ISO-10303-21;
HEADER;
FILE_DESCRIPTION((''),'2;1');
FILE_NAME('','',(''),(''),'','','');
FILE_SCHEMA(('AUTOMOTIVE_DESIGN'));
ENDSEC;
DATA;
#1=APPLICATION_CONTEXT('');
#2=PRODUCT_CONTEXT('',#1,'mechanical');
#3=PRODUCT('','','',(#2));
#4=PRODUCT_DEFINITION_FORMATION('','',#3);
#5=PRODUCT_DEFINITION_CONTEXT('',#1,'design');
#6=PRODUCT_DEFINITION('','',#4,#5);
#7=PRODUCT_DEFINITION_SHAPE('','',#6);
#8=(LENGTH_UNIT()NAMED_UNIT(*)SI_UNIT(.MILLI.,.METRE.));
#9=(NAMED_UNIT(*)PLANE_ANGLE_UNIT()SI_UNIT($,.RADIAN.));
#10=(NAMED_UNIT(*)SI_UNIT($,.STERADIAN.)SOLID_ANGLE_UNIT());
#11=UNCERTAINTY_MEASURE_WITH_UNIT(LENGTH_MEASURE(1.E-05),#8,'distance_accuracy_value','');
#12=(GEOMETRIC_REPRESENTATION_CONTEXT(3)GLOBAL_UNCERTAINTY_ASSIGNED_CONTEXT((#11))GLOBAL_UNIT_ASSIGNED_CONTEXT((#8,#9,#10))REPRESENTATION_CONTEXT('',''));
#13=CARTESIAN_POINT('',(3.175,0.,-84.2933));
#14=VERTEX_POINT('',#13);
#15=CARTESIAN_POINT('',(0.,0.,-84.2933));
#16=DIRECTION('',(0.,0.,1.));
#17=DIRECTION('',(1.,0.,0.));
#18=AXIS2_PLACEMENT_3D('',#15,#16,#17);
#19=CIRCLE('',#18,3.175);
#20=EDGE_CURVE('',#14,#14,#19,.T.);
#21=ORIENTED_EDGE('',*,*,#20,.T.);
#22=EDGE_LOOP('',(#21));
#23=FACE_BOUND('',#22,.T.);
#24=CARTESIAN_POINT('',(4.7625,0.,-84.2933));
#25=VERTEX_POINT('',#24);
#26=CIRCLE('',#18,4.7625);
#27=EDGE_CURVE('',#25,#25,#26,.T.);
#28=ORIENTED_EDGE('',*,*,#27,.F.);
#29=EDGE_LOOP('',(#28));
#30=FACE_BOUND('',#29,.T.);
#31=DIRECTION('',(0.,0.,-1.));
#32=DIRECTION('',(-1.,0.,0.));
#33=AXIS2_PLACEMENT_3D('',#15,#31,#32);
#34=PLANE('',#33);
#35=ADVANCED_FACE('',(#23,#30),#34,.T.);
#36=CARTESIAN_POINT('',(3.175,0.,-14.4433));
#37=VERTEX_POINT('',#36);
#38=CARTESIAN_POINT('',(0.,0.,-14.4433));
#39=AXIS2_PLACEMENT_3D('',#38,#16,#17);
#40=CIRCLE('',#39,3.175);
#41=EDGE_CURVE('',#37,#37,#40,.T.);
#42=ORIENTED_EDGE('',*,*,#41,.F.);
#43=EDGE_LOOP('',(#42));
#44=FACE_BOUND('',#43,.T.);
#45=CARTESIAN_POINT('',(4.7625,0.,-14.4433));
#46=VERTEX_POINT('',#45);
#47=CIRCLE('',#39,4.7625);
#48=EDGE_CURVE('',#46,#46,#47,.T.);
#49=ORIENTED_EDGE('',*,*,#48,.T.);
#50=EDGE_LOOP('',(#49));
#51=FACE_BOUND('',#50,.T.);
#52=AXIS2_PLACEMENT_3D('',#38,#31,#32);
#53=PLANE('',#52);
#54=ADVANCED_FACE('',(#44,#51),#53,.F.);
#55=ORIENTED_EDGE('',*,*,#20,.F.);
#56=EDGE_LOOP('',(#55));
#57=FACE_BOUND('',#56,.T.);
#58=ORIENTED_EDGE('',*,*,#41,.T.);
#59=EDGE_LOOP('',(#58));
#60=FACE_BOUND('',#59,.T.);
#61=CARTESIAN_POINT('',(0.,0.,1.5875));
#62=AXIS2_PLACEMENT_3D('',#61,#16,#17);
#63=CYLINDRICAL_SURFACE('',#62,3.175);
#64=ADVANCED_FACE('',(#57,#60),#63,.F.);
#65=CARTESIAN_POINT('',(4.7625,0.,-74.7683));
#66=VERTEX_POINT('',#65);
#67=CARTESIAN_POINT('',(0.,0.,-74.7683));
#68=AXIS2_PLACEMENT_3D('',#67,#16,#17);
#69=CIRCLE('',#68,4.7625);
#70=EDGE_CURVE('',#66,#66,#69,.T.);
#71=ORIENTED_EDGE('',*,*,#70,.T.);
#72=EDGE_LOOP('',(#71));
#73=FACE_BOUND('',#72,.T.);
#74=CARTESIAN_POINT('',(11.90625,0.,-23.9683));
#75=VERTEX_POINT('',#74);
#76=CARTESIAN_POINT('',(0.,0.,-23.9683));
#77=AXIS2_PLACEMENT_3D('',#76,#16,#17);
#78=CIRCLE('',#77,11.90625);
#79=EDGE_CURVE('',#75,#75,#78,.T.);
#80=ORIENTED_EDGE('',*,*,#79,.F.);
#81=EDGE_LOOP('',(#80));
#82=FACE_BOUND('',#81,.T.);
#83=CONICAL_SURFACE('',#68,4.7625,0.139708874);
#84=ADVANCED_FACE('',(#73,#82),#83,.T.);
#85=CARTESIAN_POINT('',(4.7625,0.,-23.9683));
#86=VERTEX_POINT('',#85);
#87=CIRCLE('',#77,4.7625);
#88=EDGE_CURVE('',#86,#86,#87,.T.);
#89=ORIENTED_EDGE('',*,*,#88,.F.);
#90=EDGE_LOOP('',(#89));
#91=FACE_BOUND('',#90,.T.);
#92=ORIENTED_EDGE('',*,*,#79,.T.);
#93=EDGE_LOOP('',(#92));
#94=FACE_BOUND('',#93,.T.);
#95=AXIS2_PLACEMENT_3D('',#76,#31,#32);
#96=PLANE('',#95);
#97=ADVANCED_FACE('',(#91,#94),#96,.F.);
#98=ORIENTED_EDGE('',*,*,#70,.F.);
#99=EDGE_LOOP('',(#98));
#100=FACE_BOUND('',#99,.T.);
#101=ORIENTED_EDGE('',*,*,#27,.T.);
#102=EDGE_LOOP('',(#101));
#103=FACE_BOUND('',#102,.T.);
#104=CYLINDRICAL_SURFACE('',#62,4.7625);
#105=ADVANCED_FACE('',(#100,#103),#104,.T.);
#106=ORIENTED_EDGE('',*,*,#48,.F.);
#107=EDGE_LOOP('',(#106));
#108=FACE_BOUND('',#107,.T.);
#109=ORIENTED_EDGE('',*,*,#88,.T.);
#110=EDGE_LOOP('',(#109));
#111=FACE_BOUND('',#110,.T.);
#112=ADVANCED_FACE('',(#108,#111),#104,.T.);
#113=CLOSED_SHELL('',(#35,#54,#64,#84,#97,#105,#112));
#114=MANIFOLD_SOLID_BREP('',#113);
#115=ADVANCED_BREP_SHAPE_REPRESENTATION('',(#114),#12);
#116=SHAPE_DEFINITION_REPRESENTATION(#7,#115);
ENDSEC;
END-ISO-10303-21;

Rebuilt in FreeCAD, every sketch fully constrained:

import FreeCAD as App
import Part
import Sketcher
Q = App.Units.Quantity

doc = App.newDocument("Part")
body = doc.addObject("PartDesign::Body", "Body")

# Sketch on XZ plane
sketch1 = doc.addObject("Sketcher::SketchObject", "Sketch")
body.addObject(sketch1)
sketch1.AttachmentSupport = (doc.XZ_Plane, [""])
sketch1.MapMode = "FlatFace"
sketch1.addGeometry(Part.LineSegment(App.Vector(3.2, -84.3, 0), App.Vector(3.2, -14.4, 0)), False)
sketch1.addGeometry(Part.LineSegment(App.Vector(3.2, -14.4, 0), App.Vector(4.8, -14.4, 0)), False)
sketch1.addGeometry(Part.LineSegment(App.Vector(4.8, -14.4, 0), App.Vector(4.8, -24, 0)), False)
sketch1.addGeometry(Part.LineSegment(App.Vector(4.8, -24, 0), App.Vector(11.9, -24, 0)), False)
sketch1.addGeometry(Part.LineSegment(App.Vector(11.9, -24, 0), App.Vector(4.8, -74.8, 0)), False)
sketch1.addGeometry(Part.LineSegment(App.Vector(4.8, -74.8, 0), App.Vector(4.8, -84.3, 0)), False)
sketch1.addGeometry(Part.LineSegment(App.Vector(4.8, -84.3, 0), App.Vector(3.2, -84.3, 0)), False)
sketch1.addConstraint(Sketcher.Constraint("Coincident", 0, 2, 1, 1))
sketch1.addConstraint(Sketcher.Constraint("Coincident", 1, 2, 2, 1))
sketch1.addConstraint(Sketcher.Constraint("Coincident", 2, 2, 3, 1))
sketch1.addConstraint(Sketcher.Constraint("Coincident", 3, 2, 4, 1))
sketch1.addConstraint(Sketcher.Constraint("Coincident", 4, 2, 5, 1))
sketch1.addConstraint(Sketcher.Constraint("Coincident", 5, 2, 6, 1))
sketch1.addConstraint(Sketcher.Constraint("Coincident", 6, 2, 0, 1))
sketch1.addConstraint(Sketcher.Constraint("Vertical", 0))
sketch1.addConstraint(Sketcher.Constraint("Horizontal", 1))
sketch1.addConstraint(Sketcher.Constraint("Vertical", 2))
sketch1.addConstraint(Sketcher.Constraint("Horizontal", 3))
sketch1.addConstraint(Sketcher.Constraint("Vertical", 5))
sketch1.addConstraint(Sketcher.Constraint("Horizontal", 6))
sketch1.addConstraint(Sketcher.Constraint("Vertical", 2, 2, 4, 2))
sketch1.addConstraint(Sketcher.Constraint("Equal", 2, 5))
sketch1.addConstraint(Sketcher.Constraint("DistanceY", 4, 2, 2, 2, Q("2 in")))
sketch1.addConstraint(Sketcher.Constraint("DistanceY", 0, 1, 0, 2, Q("2.75 in")))
sketch1.addConstraint(Sketcher.Constraint("DistanceX", 1, 1, 1, 2, Q("0.0625 in")))
sketch1.addConstraint(Sketcher.Constraint("DistanceX", 3, 1, 3, 2, Q("0.28125 in")))
sketch1.addConstraint(Sketcher.Constraint("DistanceX", -1, 1, 0, 2, Q("0.125 in")))
sketch1.addConstraint(Sketcher.Constraint("DistanceY", 0, 2, -1, 1, Q("14.4433 mm")))
revolution = doc.addObject("PartDesign::Revolution", "Revolution")
body.addObject(revolution)
revolution.Profile = sketch1
revolution.ReferenceAxis = (sketch1, ["V_Axis"])
revolution.Angle = 360

doc.recompute()
